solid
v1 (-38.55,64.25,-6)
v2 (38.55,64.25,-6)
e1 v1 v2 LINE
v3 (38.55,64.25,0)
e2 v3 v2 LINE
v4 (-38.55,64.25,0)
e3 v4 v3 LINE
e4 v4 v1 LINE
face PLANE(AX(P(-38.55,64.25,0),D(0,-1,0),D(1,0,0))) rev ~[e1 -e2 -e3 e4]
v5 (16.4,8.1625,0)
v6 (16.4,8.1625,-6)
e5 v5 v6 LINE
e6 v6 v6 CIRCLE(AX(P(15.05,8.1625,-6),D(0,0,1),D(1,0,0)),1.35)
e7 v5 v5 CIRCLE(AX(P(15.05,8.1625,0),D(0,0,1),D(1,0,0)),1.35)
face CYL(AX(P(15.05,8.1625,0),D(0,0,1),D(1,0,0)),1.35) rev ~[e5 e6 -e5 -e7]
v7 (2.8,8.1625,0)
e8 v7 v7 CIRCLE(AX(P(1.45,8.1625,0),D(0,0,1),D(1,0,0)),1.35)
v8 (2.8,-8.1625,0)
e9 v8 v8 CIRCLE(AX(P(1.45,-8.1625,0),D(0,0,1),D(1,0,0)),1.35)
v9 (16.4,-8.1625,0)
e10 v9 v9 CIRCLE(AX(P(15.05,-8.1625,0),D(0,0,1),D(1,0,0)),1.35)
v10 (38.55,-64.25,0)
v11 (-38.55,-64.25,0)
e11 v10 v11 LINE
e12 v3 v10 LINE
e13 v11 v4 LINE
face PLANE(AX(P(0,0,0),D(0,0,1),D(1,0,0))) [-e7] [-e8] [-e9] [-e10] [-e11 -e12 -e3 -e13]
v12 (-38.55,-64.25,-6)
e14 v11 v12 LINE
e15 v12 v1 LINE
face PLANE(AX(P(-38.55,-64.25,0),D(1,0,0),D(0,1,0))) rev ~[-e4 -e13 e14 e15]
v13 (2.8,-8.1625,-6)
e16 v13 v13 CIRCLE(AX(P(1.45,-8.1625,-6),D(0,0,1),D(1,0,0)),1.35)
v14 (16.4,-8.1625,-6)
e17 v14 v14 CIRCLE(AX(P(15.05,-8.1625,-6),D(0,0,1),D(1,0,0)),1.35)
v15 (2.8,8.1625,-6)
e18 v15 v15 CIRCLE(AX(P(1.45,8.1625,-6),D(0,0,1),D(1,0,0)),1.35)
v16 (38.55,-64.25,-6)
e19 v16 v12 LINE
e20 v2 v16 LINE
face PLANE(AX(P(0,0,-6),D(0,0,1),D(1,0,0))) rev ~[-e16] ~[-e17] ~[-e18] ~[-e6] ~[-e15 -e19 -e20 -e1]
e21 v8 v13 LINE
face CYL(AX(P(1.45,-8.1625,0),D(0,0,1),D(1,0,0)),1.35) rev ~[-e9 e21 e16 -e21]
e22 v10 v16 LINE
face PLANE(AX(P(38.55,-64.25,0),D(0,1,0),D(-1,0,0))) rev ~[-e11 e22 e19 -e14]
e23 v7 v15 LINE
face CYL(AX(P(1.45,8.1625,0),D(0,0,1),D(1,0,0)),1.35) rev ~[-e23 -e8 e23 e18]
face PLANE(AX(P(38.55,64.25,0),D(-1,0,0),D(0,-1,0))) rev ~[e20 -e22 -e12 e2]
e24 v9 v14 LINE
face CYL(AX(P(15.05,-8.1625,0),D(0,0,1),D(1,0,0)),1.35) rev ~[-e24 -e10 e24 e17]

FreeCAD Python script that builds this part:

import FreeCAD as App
import Part
import Sketcher
Q = App.Units.Quantity

doc = App.newDocument("Part")
body = doc.addObject("PartDesign::Body", "Body")

# Sketch on XY plane
sketch1 = body.newObject("Sketcher::SketchObject", "Sketch")
sketch1.AttachmentSupport = (doc.getObject("XY_Plane"), [""])
sketch1.MapMode = "FlatFace"
sketch1.addGeometry(Part.LineSegment(App.Vector(-38.55, -64.25, 0), App.Vector(38.55, -64.25, 0)), False)
sketch1.addGeometry(Part.LineSegment(App.Vector(38.55, -64.25, 0), App.Vector(38.55, 64.25, 0)), False)
sketch1.addGeometry(Part.LineSegment(App.Vector(38.55, 64.25, 0), App.Vector(-38.55, 64.25, 0)), False)
sketch1.addGeometry(Part.LineSegment(App.Vector(-38.55, 64.25, 0), App.Vector(-38.55, -64.25, 0)), False)
sketch1.addGeometry(Part.Circle(App.Vector(1.45, -8.1625, 0), App.Vector(0, 0, 1), 1.35), False)
sketch1.addGeometry(Part.Circle(App.Vector(15.05, -8.1625, 0), App.Vector(0, 0, 1), 1.35), False)
sketch1.addGeometry(Part.Circle(App.Vector(1.45, 8.1625, 0), App.Vector(0, 0, 1), 1.35), False)
sketch1.addGeometry(Part.Circle(App.Vector(15.05, 8.1625, 0), App.Vector(0, 0, 1), 1.35), False)
sketch1.addConstraint(Sketcher.Constraint("Coincident", 0, 2, 1, 1))
sketch1.addConstraint(Sketcher.Constraint("Coincident", 1, 2, 2, 1))
sketch1.addConstraint(Sketcher.Constraint("Coincident", 2, 2, 3, 1))
sketch1.addConstraint(Sketcher.Constraint("Coincident", 3, 2, 0, 1))
sketch1.addConstraint(Sketcher.Constraint("Horizontal", 0))
sketch1.addConstraint(Sketcher.Constraint("Vertical", 1))
sketch1.addConstraint(Sketcher.Constraint("Horizontal", 2))
sketch1.addConstraint(Sketcher.Constraint("Vertical", 3))
sketch1.addConstraint(Sketcher.Constraint("Equal", 4, 5))
sketch1.addConstraint(Sketcher.Constraint("Equal", 5, 6))
sketch1.addConstraint(Sketcher.Constraint("Equal", 6, 7))
sketch1.addConstraint(Sketcher.Constraint("Symmetric", 0, 2, 2, 2, -1, 1))
sketch1.addConstraint(Sketcher.Constraint("Symmetric", 4, 3, 6, 3, -1))
sketch1.addConstraint(Sketcher.Constraint("Symmetric", 5, 3, 7, 3, -1))
sketch1.addConstraint(Sketcher.Constraint("Horizontal", 4, 3, 5, 3))
sketch1.addConstraint(Sketcher.Constraint("Diameter", 4, Q("2.7 mm")))
sketch1.addConstraint(Sketcher.Constraint("DistanceX", 0, 1, 0, 2, Q("77.1 mm")))
sketch1.addConstraint(Sketcher.Constraint("DistanceY", 1, 1, 1, 2, Q("128.5 mm")))
sketch1.addConstraint(Sketcher.Constraint("DistanceX", 2, 2, 6, 3, Q("40 mm")))
sketch1.addConstraint(Sketcher.Constraint("DistanceX", 4, 3, 5, 3, Q("13.6 mm")))
sketch1.addConstraint(Sketcher.Constraint("DistanceY", 4, 3, 6, 3, Q("16.325 mm")))
pad1 = body.newObject("PartDesign::Pad", "Pad")
pad1.Profile = sketch1
pad1.Length = 6
pad1.Reversed = True

doc.recompute()
